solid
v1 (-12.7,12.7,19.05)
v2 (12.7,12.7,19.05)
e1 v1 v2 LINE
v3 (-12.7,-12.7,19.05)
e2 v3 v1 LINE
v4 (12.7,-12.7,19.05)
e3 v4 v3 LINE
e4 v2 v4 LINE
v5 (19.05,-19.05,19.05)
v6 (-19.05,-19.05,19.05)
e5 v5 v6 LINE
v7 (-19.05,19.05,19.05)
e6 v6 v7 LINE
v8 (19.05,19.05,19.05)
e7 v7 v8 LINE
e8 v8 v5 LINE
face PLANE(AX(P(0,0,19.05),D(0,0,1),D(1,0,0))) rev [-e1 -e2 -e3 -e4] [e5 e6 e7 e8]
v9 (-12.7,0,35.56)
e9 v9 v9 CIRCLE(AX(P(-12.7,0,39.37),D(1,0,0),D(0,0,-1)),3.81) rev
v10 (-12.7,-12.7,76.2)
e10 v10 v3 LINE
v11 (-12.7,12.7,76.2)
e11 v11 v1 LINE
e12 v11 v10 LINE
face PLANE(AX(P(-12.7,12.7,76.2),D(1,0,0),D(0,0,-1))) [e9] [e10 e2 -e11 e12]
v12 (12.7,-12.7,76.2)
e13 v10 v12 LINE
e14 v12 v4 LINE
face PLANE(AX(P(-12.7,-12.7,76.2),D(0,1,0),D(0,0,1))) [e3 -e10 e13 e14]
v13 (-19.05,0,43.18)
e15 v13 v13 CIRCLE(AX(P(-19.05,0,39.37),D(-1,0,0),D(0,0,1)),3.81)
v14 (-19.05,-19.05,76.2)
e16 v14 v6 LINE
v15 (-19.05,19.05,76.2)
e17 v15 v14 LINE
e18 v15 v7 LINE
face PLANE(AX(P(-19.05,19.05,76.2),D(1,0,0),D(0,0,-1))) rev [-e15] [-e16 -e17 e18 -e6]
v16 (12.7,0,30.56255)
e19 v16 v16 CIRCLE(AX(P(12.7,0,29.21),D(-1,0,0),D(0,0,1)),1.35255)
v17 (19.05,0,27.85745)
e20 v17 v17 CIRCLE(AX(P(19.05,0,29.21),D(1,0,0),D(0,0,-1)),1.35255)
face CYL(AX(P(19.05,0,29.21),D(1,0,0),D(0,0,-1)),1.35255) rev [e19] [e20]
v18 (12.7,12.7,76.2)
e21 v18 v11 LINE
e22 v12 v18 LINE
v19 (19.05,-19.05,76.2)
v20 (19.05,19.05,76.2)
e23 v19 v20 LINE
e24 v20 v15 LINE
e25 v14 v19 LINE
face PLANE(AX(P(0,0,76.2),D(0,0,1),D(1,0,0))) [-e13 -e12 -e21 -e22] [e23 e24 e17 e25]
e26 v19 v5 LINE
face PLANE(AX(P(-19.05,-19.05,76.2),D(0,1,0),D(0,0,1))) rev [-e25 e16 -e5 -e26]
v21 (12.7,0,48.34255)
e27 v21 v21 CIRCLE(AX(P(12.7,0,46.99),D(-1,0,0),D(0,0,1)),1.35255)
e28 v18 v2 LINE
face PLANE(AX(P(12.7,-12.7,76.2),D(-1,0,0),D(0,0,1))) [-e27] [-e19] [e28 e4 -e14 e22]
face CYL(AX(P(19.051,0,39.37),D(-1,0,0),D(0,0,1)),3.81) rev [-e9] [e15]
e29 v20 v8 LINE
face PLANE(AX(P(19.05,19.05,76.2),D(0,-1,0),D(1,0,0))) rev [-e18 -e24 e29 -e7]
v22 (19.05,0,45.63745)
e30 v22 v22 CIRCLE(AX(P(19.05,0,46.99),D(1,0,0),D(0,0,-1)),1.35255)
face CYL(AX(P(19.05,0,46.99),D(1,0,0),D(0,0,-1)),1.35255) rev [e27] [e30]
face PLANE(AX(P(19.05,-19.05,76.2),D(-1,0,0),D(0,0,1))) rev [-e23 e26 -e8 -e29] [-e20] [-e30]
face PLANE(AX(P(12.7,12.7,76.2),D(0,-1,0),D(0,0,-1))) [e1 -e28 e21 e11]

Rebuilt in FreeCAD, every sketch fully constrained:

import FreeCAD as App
import Part
import Sketcher
Q = App.Units.Quantity

doc = App.newDocument("Part")
body = doc.addObject("PartDesign::Body", "Body")

# Sketch on XY plane
sketch1 = body.newObject("Sketcher::SketchObject", "Sketch")
sketch1.AttachmentSupport = (doc.getObject("XY_Plane"), [""])
sketch1.MapMode = "FlatFace"
sketch1.addGeometry(Part.LineSegment(App.Vector(-19.05, 19.05, 0), App.Vector(-19.05, -19.05, 0)), False)
sketch1.addGeometry(Part.LineSegment(App.Vector(-19.05, -19.05, 0), App.Vector(19.05, -19.05, 0)), False)
sketch1.addGeometry(Part.LineSegment(App.Vector(19.05, -19.05, 0), App.Vector(19.05, 19.05, 0)), False)
sketch1.addGeometry(Part.LineSegment(App.Vector(19.05, 19.05, 0), App.Vector(-19.05, 19.05, 0)), False)
sketch1.addGeometry(Part.LineSegment(App.Vector(12.7, -12.7, 0), App.Vector(-12.7, -12.7, 0)), False)
sketch1.addGeometry(Part.LineSegment(App.Vector(-12.7, -12.7, 0), App.Vector(-12.7, 12.7, 0)), False)
sketch1.addGeometry(Part.LineSegment(App.Vector(-12.7, 12.7, 0), App.Vector(12.7, 12.7, 0)), False)
sketch1.addGeometry(Part.LineSegment(App.Vector(12.7, 12.7, 0), App.Vector(12.7, -12.7, 0)), False)
sketch1.addConstraint(Sketcher.Constraint("Coincident", 0, 2, 1, 1))
sketch1.addConstraint(Sketcher.Constraint("Coincident", 1, 2, 2, 1))
sketch1.addConstraint(Sketcher.Constraint("Coincident", 2, 2, 3, 1))
sketch1.addConstraint(Sketcher.Constraint("Coincident", 3, 2, 0, 1))
sketch1.addConstraint(Sketcher.Constraint("Coincident", 4, 2, 5, 1))
sketch1.addConstraint(Sketcher.Constraint("Coincident", 5, 2, 6, 1))
sketch1.addConstraint(Sketcher.Constraint("Coincident", 6, 2, 7, 1))
sketch1.addConstraint(Sketcher.Constraint("Coincident", 7, 2, 4, 1))
sketch1.addConstraint(Sketcher.Constraint("Vertical", 0))
sketch1.addConstraint(Sketcher.Constraint("Horizontal", 1))
sketch1.addConstraint(Sketcher.Constraint("Vertical", 2))
sketch1.addConstraint(Sketcher.Constraint("Horizontal", 3))
sketch1.addConstraint(Sketcher.Constraint("Horizontal", 4))
sketch1.addConstraint(Sketcher.Constraint("Vertical", 5))
sketch1.addConstraint(Sketcher.Constraint("Horizontal", 6))
sketch1.addConstraint(Sketcher.Constraint("Vertical", 7))
sketch1.addConstraint(Sketcher.Constraint("Symmetric", 0, 2, 2, 2, -1, 1))
sketch1.addConstraint(Sketcher.Constraint("Symmetric", 4, 2, 6, 2, -1, 1))
sketch1.addConstraint(Sketcher.Constraint("Equal", 3, 0))
sketch1.addConstraint(Sketcher.Constraint("Equal", 6, 5))
sketch1.addConstraint(Sketcher.Constraint("DistanceX", 4, 2, 4, 1, Q("1 in")))
sketch1.addConstraint(Sketcher.Constraint("DistanceX", 1, 1, 1, 2, Q("1.5 in")))
pad1 = body.newObject("PartDesign::Pad", "Pad")
pad1.Profile = sketch1
pad1.Type = "TwoLengths"
pad1.Length = Q("3 in")
pad1.Length2 = Q("3 in")

# Sketch on XY plane
sketch2 = body.newObject("Sketcher::SketchObject", "Sketch001")
sketch2.AttachmentSupport = (doc.getObject("XY_Plane"), [""])
sketch2.MapMode = "FlatFace"
sketch2.AttachmentOffset = App.Placement(App.Vector(0, 0, -3 * 25.4), App.Rotation())
sketch2.addGeometry(Part.LineSegment(App.Vector(19.05, 19.05, 0), App.Vector(19.05, -19.05, 0)), False)
sketch2.addGeometry(Part.LineSegment(App.Vector(19.05, -19.05, 0), App.Vector(-19.05, -19.05, 0)), False)
sketch2.addGeometry(Part.LineSegment(App.Vector(-19.05, -19.05, 0), App.Vector(-19.05, 19.05, 0)), False)
sketch2.addGeometry(Part.LineSegment(App.Vector(-19.05, 19.05, 0), App.Vector(19.05, 19.05, 0)), False)
sketch2.addGeometry(Part.LineSegment(App.Vector(-12.7, -12.7, 0), App.Vector(12.7, -12.7, 0)), False)
sketch2.addGeometry(Part.LineSegment(App.Vector(12.7, -12.7, 0), App.Vector(12.7, 12.7, 0)), False)
sketch2.addGeometry(Part.LineSegment(App.Vector(12.7, 12.7, 0), App.Vector(-12.7, 12.7, 0)), False)
sketch2.addGeometry(Part.LineSegment(App.Vector(-12.7, 12.7, 0), App.Vector(-12.7, -12.7, 0)), False)
sketch2.addConstraint(Sketcher.Constraint("Coincident", 0, 2, 1, 1))
sketch2.addConstraint(Sketcher.Constraint("Coincident", 1, 2, 2, 1))
sketch2.addConstraint(Sketcher.Constraint("Coincident", 2, 2, 3, 1))
sketch2.addConstraint(Sketcher.Constraint("Coincident", 3, 2, 0, 1))
sketch2.addConstraint(Sketcher.Constraint("Coincident", 4, 2, 5, 1))
sketch2.addConstraint(Sketcher.Constraint("Coincident", 5, 2, 6, 1))
sketch2.addConstraint(Sketcher.Constraint("Coincident", 6, 2, 7, 1))
sketch2.addConstraint(Sketcher.Constraint("Coincident", 7, 2, 4, 1))
sketch2.addConstraint(Sketcher.Constraint("Vertical", 0))
sketch2.addConstraint(Sketcher.Constraint("Horizontal", 1))
sketch2.addConstraint(Sketcher.Constraint("Vertical", 2))
sketch2.addConstraint(Sketcher.Constraint("Horizontal", 3))
sketch2.addConstraint(Sketcher.Constraint("Horizontal", 4))
sketch2.addConstraint(Sketcher.Constraint("Vertical", 5))
sketch2.addConstraint(Sketcher.Constraint("Horizontal", 6))
sketch2.addConstraint(Sketcher.Constraint("Vertical", 7))
sketch2.addConstraint(Sketcher.Constraint("Symmetric", 0, 2, 2, 2, -1, 1))
sketch2.addConstraint(Sketcher.Constraint("Symmetric", 4, 2, 6, 2, -1, 1))
sketch2.addConstraint(Sketcher.Constraint("Equal", 3, 0))
sketch2.addConstraint(Sketcher.Constraint("Equal", 6, 5))
sketch2.addConstraint(Sketcher.Constraint("DistanceX", 4, 1, 4, 2, Q("1 in")))
sketch2.addConstraint(Sketcher.Constraint("DistanceX", 1, 2, 1, 1, Q("1.5 in")))
pocket1 = body.newObject("PartDesign::Pocket", "Pocket")
pocket1.Profile = sketch2
pocket1.Length = Q("3.75 in")
pocket1.Reversed = True

# Sketch on YZ plane
sketch3 = body.newObject("Sketcher::SketchObject", "Sketch002")
sketch3.AttachmentSupport = (doc.getObject("YZ_Plane"), [""])
sketch3.MapMode = "FlatFace"
sketch3.AttachmentOffset = App.Placement(App.Vector(0, 0, -0.75 * 25.4), App.Rotation())
sketch3.addGeometry(Part.Circle(App.Vector(0, 39.37, 0), App.Vector(0, 0, 1), 3.81), False)
sketch3.addConstraint(Sketcher.Constraint("PointOnObject", 0, 3, -2))
sketch3.addConstraint(Sketcher.Constraint("Diameter", 0, Q("0.3 in")))
sketch3.addConstraint(Sketcher.Constraint("DistanceY", -1, 1, 0, 3, Q("1.55 in")))
pocket2 = body.newObject("PartDesign::Pocket", "Pocket001")
pocket2.Profile = sketch3
pocket2.Type = "UpToFirst"
pocket2.Reversed = True

# Sketch on YZ plane
sketch4 = body.newObject("Sketcher::SketchObject", "Sketch003")
sketch4.AttachmentSupport = (doc.getObject("YZ_Plane"), [""])
sketch4.MapMode = "FlatFace"
sketch4.AttachmentOffset = App.Placement(App.Vector(0, 0, 0.75 * 25.4), App.Rotation())
sketch4.addGeometry(Part.Circle(App.Vector(0, 29.21, 0), App.Vector(0, 0, 1), 1.35255), False)
sketch4.addGeometry(Part.Circle(App.Vector(0, 46.99, 0), App.Vector(0, 0, 1), 1.35255), False)
sketch4.addConstraint(Sketcher.Constraint("Equal", 0, 1))
sketch4.addConstraint(Sketcher.Constraint("PointOnObject", 0, 3, -2))
sketch4.addConstraint(Sketcher.Constraint("PointOnObject", 1, 3, -2))
sketch4.addConstraint(Sketcher.Constraint("Diameter", 0, Q("0.1065 in")))
sketch4.addConstraint(Sketcher.Constraint("DistanceY", 0, 3, 1, 3, Q("0.7 in")))
sketch4.addConstraint(Sketcher.Constraint("DistanceY", -1, 1, 0, 3, Q("1.15 in")))
doc.recompute()
hole = body.newObject("PartDesign::Hole", "Hole")
hole.Profile = sketch4
hole.ThreadType = "None"
hole.Diameter = Q("0.1065 in")
hole.DepthType = "Dimension"
hole.Depth = Q("0.25 in")
hole.DrillPoint = "Flat"

doc.recompute()
